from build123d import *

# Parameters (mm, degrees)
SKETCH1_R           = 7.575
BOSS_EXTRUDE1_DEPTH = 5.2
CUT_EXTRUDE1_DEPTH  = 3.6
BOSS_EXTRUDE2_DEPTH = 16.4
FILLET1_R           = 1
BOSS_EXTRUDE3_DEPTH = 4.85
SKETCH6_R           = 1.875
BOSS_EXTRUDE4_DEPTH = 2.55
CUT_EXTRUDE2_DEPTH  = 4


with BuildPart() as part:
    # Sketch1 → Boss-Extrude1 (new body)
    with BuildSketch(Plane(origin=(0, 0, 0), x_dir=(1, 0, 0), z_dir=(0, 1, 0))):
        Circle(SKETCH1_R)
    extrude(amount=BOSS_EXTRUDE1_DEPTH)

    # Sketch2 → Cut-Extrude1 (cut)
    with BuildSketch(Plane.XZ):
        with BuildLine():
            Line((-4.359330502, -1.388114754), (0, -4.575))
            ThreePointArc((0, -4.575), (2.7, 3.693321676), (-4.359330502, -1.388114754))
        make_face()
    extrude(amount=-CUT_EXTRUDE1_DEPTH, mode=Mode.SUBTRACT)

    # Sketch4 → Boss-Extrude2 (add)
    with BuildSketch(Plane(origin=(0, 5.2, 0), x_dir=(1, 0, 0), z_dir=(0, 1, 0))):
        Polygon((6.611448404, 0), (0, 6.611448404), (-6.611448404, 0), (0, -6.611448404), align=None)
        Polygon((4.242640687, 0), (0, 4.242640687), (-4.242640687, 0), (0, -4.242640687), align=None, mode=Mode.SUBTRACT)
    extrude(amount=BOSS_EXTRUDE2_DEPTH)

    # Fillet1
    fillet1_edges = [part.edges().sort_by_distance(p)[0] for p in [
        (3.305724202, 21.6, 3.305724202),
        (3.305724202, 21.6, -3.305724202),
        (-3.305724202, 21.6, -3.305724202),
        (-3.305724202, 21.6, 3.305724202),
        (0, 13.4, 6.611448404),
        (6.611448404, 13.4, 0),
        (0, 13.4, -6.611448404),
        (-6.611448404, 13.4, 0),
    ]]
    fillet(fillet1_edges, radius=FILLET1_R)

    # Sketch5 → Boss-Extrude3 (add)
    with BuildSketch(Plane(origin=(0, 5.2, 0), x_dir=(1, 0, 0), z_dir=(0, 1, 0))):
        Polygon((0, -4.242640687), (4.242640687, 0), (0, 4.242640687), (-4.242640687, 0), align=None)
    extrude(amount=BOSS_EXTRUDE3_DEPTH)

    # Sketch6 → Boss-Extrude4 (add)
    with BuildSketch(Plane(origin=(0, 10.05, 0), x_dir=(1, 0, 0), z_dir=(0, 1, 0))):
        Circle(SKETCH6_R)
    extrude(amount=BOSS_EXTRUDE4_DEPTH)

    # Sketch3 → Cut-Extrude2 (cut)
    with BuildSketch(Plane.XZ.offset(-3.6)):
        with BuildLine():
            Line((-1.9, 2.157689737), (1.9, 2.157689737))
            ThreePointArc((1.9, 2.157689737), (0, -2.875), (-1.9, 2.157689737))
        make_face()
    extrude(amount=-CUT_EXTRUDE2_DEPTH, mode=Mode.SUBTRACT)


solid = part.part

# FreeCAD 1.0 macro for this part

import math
import FreeCAD as App
import Part
import Sketcher
from FreeCAD import Vector


def edges_at(feature, points):
    """Names of the edges that pass closest to the given points."""
    edges = feature.Shape.Edges
    near = lambda p: min(range(len(edges)), key=lambda i: edges[i].distToShape(Part.Vertex(*p))[0])
    return sorted({f"Edge{near(p) + 1}" for p in points})


def add_polygon(sketch, points):
    """Adds a closed chain of lines whose ends are joined by coincident constraints."""
    first, n = sketch.GeometryCount, len(points)
    for a, b in zip(points, points[1:] + points[:1]):
        sketch.addGeometry(Part.LineSegment(App.Vector(*a, 0), App.Vector(*b, 0)), False)
    for i in range(n):
        sketch.addConstraint(Sketcher.Constraint("Coincident", first + i, 2, first + (i + 1) % n, 1))

doc = App.newDocument("Part")
params = doc.addObject("Spreadsheet::Sheet", "Params")
for row, (alias, value) in enumerate([
    ("sketch1_diameter", "15.15 mm"),
    ("pad1_length", "5.2 mm"),
    ("sketch2_length", "5.4 mm"),
    ("pocket1_length", "3.6 mm"),
    ("sketch3_length", "6 mm"),
    ("sketch3_length2", "9.35 mm"),
    ("pad2_length", "16.4 mm"),
    ("fillet_radius", "1 mm"),
    ("sketch4_length", "6 mm"),
    ("pad3_length", "4.85 mm"),
    ("sketch5_diameter", "3.75 mm"),
    ("pad4_length", "2.55 mm"),
    ("sketch6_width", "3.8 mm"),
    ("pocket2_length", "4 mm"),
], start=1):
    params.set(f"A{row}", alias)
    params.set(f"B{row}", "=" + value)
    params.setAlias(f"B{row}", alias)

body = doc.addObject("PartDesign::Body", "Body")

# Sketch on XZ plane
sketch1 = body.newObject("Sketcher::SketchObject", "Sketch")
sketch1.AttachmentSupport = (doc.getObject("XZ_Plane"), [""])
sketch1.MapMode = "FlatFace"
sketch1.addGeometry(Part.Circle(Vector(0, 0, 0), Vector(0, 0, 1), 8), False)
sketch1.addConstraint(Sketcher.Constraint("Coincident", 0, 3, -1, 1))
sketch1.addConstraint(Sketcher.Constraint("Diameter", 0, 15.15))
sketch1.setExpression("Constraints[1]", "Params.sketch1_diameter")
pad1 = body.newObject("PartDesign::Pad", "Pad")
pad1.Profile = sketch1
pad1.setExpression("Length", "Params.pad1_length")
pad1.Reversed = True

# Sketch on XZ plane
sketch2 = body.newObject("Sketcher::SketchObject", "Sketch001")
sketch2.AttachmentSupport = (doc.getObject("XZ_Plane"), [""])
sketch2.MapMode = "FlatFace"
sketch2.addGeometry(Part.LineSegment(Vector(-4.4, -1.4, 0), Vector(0, -4.6, 0)), False)
sketch2.addGeometry(Part.ArcOfCircle(Part.Circle(Vector(0, 0, 0), Vector(0, 0, 1), 4.6), math.radians(-90), math.radians(198)), False)
sketch2.addConstraint(Sketcher.Constraint("Coincident", 0, 1, 1, 2))
sketch2.addConstraint(Sketcher.Constraint("Coincident", 1, 1, 0, 2))
sketch2.addConstraint(Sketcher.Constraint("Coincident", 1, 3, -1, 1))
sketch2.addConstraint(Sketcher.Constraint("PointOnObject", 1, 1, -2))
sketch2.addConstraint(Sketcher.Constraint("Radius", 1, 4.575))
sketch2.addConstraint(Sketcher.Constraint("Distance", 0, 5.4))
sketch2.setExpression("Constraints[5]", "Params.sketch2_length")
pocket1 = body.newObject("PartDesign::Pocket", "Pocket")
pocket1.Profile = sketch2
pocket1.setExpression("Length", "Params.pocket1_length")

# Sketch on XZ plane
sketch3 = body.newObject("Sketcher::SketchObject", "Sketch002")
sketch3.AttachmentSupport = (doc.getObject("XZ_Plane"), [""])
sketch3.MapMode = "FlatFace"
sketch3.AttachmentOffset = App.Placement(Vector(0, 0, -5.2), App.Rotation())
add_polygon(sketch3, [(7, 0), (0, -7), (-7, 0), (0, 7)])  # lines 0-3
add_polygon(sketch3, [(0, -4), (4, 0), (0, 4), (-4, 0)])  # lines 4-7
sketch3.addConstraint(Sketcher.Constraint("Symmetric", 0, 2, 2, 2, -1, 1))
sketch3.addConstraint(Sketcher.Constraint("Symmetric", 1, 2, 3, 2, -1, 1))
sketch3.addConstraint(Sketcher.Constraint("Symmetric", 4, 2, 6, 2, -1, 1))
sketch3.addConstraint(Sketcher.Constraint("Symmetric", 5, 2, 7, 2, -1, 1))
sketch3.addConstraint(Sketcher.Constraint("PointOnObject", 0, 2, -2))
sketch3.addConstraint(Sketcher.Constraint("PointOnObject", 1, 2, -1))
sketch3.addConstraint(Sketcher.Constraint("PointOnObject", 4, 2, -1))
sketch3.addConstraint(Sketcher.Constraint("PointOnObject", 5, 2, -2))
sketch3.addConstraint(Sketcher.Constraint("Perpendicular", 0, 1))
sketch3.addConstraint(Sketcher.Constraint("Perpendicular", 3, 4))
sketch3.addConstraint(Sketcher.Constraint("Distance", 4, 6.0))
sketch3.addConstraint(Sketcher.Constraint("Distance", 0, 9.35))
sketch3.setExpression("Constraints[18]", "Params.sketch3_length")
sketch3.setExpression("Constraints[19]", "Params.sketch3_length2")
pad2 = body.newObject("PartDesign::Pad", "Pad001")
pad2.Profile = sketch3
pad2.setExpression("Length", "Params.pad2_length")
pad2.Reversed = True
doc.recompute()

fillet = body.newObject("PartDesign::Fillet", "Fillet")
fillet.Base = (pad2, edges_at(pad2, [
    (3.306, 21.6, 3.306),
    (3.306, 21.6, -3.306),
    (-3.306, 21.6, -3.306),
    (-3.306, 21.6, 3.306),
    (0, 13.4, 6.611),
    (6.611, 13.4, 0),
    (0, 13.4, -6.611),
    (-6.611, 13.4, 0),
]))
fillet.setExpression("Radius", "Params.fillet_radius")

# Sketch on XZ plane
sketch4 = body.newObject("Sketcher::SketchObject", "Sketch003")
sketch4.AttachmentSupport = (doc.getObject("XZ_Plane"), [""])
sketch4.MapMode = "FlatFace"
sketch4.AttachmentOffset = App.Placement(Vector(0, 0, -5.2), App.Rotation())
add_polygon(sketch4, [(0, 4), (4, 0), (0, -4), (-4, 0)])  # lines 0-3
sketch4.addConstraint(Sketcher.Constraint("Symmetric", 0, 2, 2, 2, -1, 1))
sketch4.addConstraint(Sketcher.Constraint("Symmetric", 1, 2, 3, 2, -1, 1))
sketch4.addConstraint(Sketcher.Constraint("PointOnObject", 0, 2, -1))
sketch4.addConstraint(Sketcher.Constraint("PointOnObject", 1, 2, -2))
sketch4.addConstraint(Sketcher.Constraint("Perpendicular", 0, 1))
sketch4.addConstraint(Sketcher.Constraint("Distance", 0, 6.0))
sketch4.setExpression("Constraints[9]", "Params.sketch4_length")
pad3 = body.newObject("PartDesign::Pad", "Pad002")
pad3.Profile = sketch4
pad3.setExpression("Length", "Params.pad3_length")
pad3.Reversed = True

# Sketch on XZ plane
sketch5 = body.newObject("Sketcher::SketchObject", "Sketch004")
sketch5.AttachmentSupport = (doc.getObject("XZ_Plane"), [""])
sketch5.MapMode = "FlatFace"
sketch5.AttachmentOffset = App.Placement(Vector(0, 0, -10.05), App.Rotation())
sketch5.addGeometry(Part.Circle(Vector(0, 0, 0), Vector(0, 0, 1), 1.9), False)
sketch5.addConstraint(Sketcher.Constraint("Coincident", 0, 3, -1, 1))
sketch5.addConstraint(Sketcher.Constraint("Diameter", 0, 3.75))
sketch5.setExpression("Constraints[1]", "Params.sketch5_diameter")
pad4 = body.newObject("PartDesign::Pad", "Pad003")
pad4.Profile = sketch5
pad4.setExpression("Length", "Params.pad4_length")
pad4.Reversed = True

# Sketch on XZ plane
sketch6 = body.newObject("Sketcher::SketchObject", "Sketch005")
sketch6.AttachmentSupport = (doc.getObject("XZ_Plane"), [""])
sketch6.MapMode = "FlatFace"
sketch6.AttachmentOffset = App.Placement(Vector(0, 0, -3.6), App.Rotation())
sketch6.addGeometry(Part.LineSegment(Vector(1.9, 2.2, 0), Vector(-1.9, 2.2, 0)), False)
sketch6.addGeometry(Part.ArcOfCircle(Part.Circle(Vector(0, 0, 0), Vector(0, 0, 1), 2.9), math.radians(131), math.radians(409)), False)
sketch6.addConstraint(Sketcher.Constraint("Coincident", 0, 1, 1, 2))
sketch6.addConstraint(Sketcher.Constraint("Coincident", 1, 1, 0, 2))
sketch6.addConstraint(Sketcher.Constraint("Horizontal", 0))
sketch6.addConstraint(Sketcher.Constraint("Coincident", 1, 3, -1, 1))
sketch6.addConstraint(Sketcher.Constraint("DistanceX", 0, 2, 0, 1, 3.8))
sketch6.addConstraint(Sketcher.Constraint("Radius", 1, 2.875))
sketch6.setExpression("Constraints[4]", "Params.sketch6_width")
pocket2 = body.newObject("PartDesign::Pocket", "Pocket001")
pocket2.Profile = sketch6
pocket2.setExpression("Length", "Params.pocket2_length")

doc.recompute()
